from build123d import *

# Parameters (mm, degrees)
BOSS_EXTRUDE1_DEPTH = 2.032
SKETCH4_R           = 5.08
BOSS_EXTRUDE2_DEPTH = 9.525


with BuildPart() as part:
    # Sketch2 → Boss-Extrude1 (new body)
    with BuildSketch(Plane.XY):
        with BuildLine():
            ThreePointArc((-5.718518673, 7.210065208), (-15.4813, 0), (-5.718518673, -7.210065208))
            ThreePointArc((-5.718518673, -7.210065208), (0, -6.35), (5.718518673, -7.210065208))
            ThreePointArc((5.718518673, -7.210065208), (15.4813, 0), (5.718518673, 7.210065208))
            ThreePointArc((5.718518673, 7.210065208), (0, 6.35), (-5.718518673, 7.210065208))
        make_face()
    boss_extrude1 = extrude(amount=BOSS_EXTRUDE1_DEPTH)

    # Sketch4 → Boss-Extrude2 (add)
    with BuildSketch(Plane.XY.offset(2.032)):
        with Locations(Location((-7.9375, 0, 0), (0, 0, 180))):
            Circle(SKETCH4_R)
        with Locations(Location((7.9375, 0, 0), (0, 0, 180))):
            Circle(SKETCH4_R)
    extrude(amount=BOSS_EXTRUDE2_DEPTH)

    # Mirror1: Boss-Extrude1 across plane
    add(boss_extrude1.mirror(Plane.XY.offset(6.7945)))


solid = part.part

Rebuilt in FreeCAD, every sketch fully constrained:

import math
import FreeCAD as App
import Part
import Sketcher
from FreeCAD import Vector
Q = App.Units.Quantity

doc = App.newDocument("Part")
body = doc.addObject("PartDesign::Body", "Body")

# Sketch on XY plane
sketch1 = body.newObject("Sketcher::SketchObject", "Sketch")
sketch1.AttachmentSupport = (doc.getObject("XY_Plane"), [""])
sketch1.MapMode = "FlatFace"
sketch1.addGeometry(Part.ArcOfCircle(Part.Circle(Vector(-8, 0, 0), Vector(0, 0, 1), 8), math.radians(73), math.radians(287)), False)
sketch1.addGeometry(Part.ArcOfCircle(Part.Circle(Vector(0, -26, 0), Vector(0, 0, 1), 19), math.radians(73), math.radians(107)), False)
sketch1.addGeometry(Part.ArcOfCircle(Part.Circle(Vector(8, 0, 0), Vector(0, 0, 1), 8), math.radians(-107), math.radians(107)), False)
sketch1.addGeometry(Part.ArcOfCircle(Part.Circle(Vector(0, 26, 0), Vector(0, 0, 1), 19), math.radians(-107), math.radians(-73)), False)
sketch1.addConstraint(Sketcher.Constraint("Tangent", 0, 2, 1, 2))
sketch1.addConstraint(Sketcher.Constraint("Tangent", 1, 1, 2, 1))
sketch1.addConstraint(Sketcher.Constraint("Tangent", 2, 2, 3, 2))
sketch1.addConstraint(Sketcher.Constraint("Tangent", 3, 1, 0, 1))
sketch1.addConstraint(Sketcher.Constraint("Equal", 0, 2))
sketch1.addConstraint(Sketcher.Constraint("Equal", 1, 3))
sketch1.addConstraint(Sketcher.Constraint("Symmetric", 0, 3, 2, 3, -1, 1))
sketch1.addConstraint(Sketcher.Constraint("PointOnObject", 0, 3, -1))
sketch1.addConstraint(Sketcher.Constraint("Radius", 0, Q("0.297 in")))
sketch1.addConstraint(Sketcher.Constraint("DistanceX", 0, 3, -1, 1, Q("0.3125 in")))
sketch1.addConstraint(Sketcher.Constraint("Radius", 1, Q("19.441065 mm")))
pad1 = body.newObject("PartDesign::Pad", "Pad")
pad1.Profile = sketch1
pad1.Length = Q("0.08 in")

# Sketch on XY plane
sketch2 = body.newObject("Sketcher::SketchObject", "Sketch001")
sketch2.AttachmentSupport = (doc.getObject("XY_Plane"), [""])
sketch2.MapMode = "FlatFace"
sketch2.AttachmentOffset = App.Placement(Vector(0, 0, 0.08 * 25.4), App.Rotation())
sketch2.addGeometry(Part.Circle(Vector(-8, 0, 0), Vector(0, 0, 1), 5), False)
sketch2.addGeometry(Part.Circle(Vector(8, 0, 0), Vector(0, 0, 1), 5), False)
sketch2.addConstraint(Sketcher.Constraint("Equal", 0, 1))
sketch2.addConstraint(Sketcher.Constraint("Symmetric", 0, 3, 1, 3, -1, 1))
sketch2.addConstraint(Sketcher.Constraint("PointOnObject", 0, 3, -1))
sketch2.addConstraint(Sketcher.Constraint("Diameter", 0, Q("0.4 in")))
sketch2.addConstraint(Sketcher.Constraint("DistanceX", 0, 3, -1, 1, Q("0.3125 in")))
pad2 = body.newObject("PartDesign::Pad", "Pad001")
pad2.Profile = sketch2
pad2.Length = Q("0.375 in")
doc.recompute()

datumplane = body.newObject("PartDesign::Plane", "DatumPlane")
datumplane.AttachmentSupport = (doc.getObject("XY_Plane"), [""])
datumplane.MapMode = "FlatFace"
datumplane.AttachmentOffset = App.Placement(Vector(0, 0, 0.2675 * 25.4), App.Rotation())
mirrored = body.newObject("PartDesign::Mirrored", "Mirrored")
mirrored.Originals = [pad1]
mirrored.MirrorPlane = (datumplane, [""])
body.Tip = mirrored

doc.recompute()
